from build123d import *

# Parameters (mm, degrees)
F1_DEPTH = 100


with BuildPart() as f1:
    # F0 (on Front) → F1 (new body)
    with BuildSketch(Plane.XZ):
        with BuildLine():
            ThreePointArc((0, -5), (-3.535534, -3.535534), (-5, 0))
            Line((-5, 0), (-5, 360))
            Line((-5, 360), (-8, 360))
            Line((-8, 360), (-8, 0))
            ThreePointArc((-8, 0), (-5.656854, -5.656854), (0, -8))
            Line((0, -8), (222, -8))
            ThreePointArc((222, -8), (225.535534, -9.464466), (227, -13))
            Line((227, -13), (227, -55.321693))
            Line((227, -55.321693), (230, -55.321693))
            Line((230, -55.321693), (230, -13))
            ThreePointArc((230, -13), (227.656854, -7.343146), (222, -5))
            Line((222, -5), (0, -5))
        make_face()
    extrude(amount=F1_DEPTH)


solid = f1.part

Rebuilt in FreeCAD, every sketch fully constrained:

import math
import FreeCAD as App
import Part
import Sketcher

V = App.Vector
Q = App.Units.Quantity

doc = App.newDocument("Part")
body = doc.addObject("PartDesign::Body", "Body")

sketch1 = body.newObject("Sketcher::SketchObject", "Sketch")
sketch1.AttachmentSupport = (doc.getObject("XZ_Plane"), [""])
sketch1.MapMode = "FlatFace"
sketch1.addGeometry(Part.ArcOfCircle(Part.Circle(V(0, 0, 0), V(0, 0, 1), 5), math.radians(180), math.radians(270)), False)
sketch1.addGeometry(Part.LineSegment(V(-5, 0, 0), V(-5, 360, 0)), False)
sketch1.addGeometry(Part.LineSegment(V(-5, 360, 0), V(-8, 360, 0)), False)
sketch1.addGeometry(Part.LineSegment(V(-8, 360, 0), V(-8, 0, 0)), False)
sketch1.addGeometry(Part.ArcOfCircle(Part.Circle(V(0, 0, 0), V(0, 0, 1), 8), math.radians(-180), math.radians(-90)), False)
sketch1.addGeometry(Part.LineSegment(V(0, -8, 0), V(222, -8, 0)), False)
sketch1.addGeometry(Part.ArcOfCircle(Part.Circle(V(222, -13, 0), V(0, 0, 1), 5), math.radians(0), math.radians(90)), False)
sketch1.addGeometry(Part.LineSegment(V(227, -13, 0), V(227, -55.3, 0)), False)
sketch1.addGeometry(Part.LineSegment(V(227, -55.3, 0), V(230, -55.3, 0)), False)
sketch1.addGeometry(Part.LineSegment(V(230, -55.3, 0), V(230, -13, 0)), False)
sketch1.addGeometry(Part.ArcOfCircle(Part.Circle(V(222, -13, 0), V(0, 0, 1), 8), math.radians(0), math.radians(90)), False)
sketch1.addGeometry(Part.LineSegment(V(222, -5, 0), V(0, -5, 0)), False)
sketch1.addConstraint(Sketcher.Constraint("Tangent", 0, 1, 1, 1))
sketch1.addConstraint(Sketcher.Constraint("Coincident", 1, 2, 2, 1))
sketch1.addConstraint(Sketcher.Constraint("Coincident", 2, 2, 3, 1))
sketch1.addConstraint(Sketcher.Constraint("Tangent", 3, 2, 4, 1))
sketch1.addConstraint(Sketcher.Constraint("Tangent", 4, 2, 5, 1))
sketch1.addConstraint(Sketcher.Constraint("Tangent", 5, 2, 6, 2))
sketch1.addConstraint(Sketcher.Constraint("Tangent", 6, 1, 7, 1))
sketch1.addConstraint(Sketcher.Constraint("Coincident", 7, 2, 8, 1))
sketch1.addConstraint(Sketcher.Constraint("Coincident", 8, 2, 9, 1))
sketch1.addConstraint(Sketcher.Constraint("Tangent", 9, 2, 10, 1))
sketch1.addConstraint(Sketcher.Constraint("Tangent", 10, 2, 11, 1))
sketch1.addConstraint(Sketcher.Constraint("Tangent", 11, 2, 0, 2))
sketch1.addConstraint(Sketcher.Constraint("Vertical", 1))
sketch1.addConstraint(Sketcher.Constraint("Horizontal", 2))
sketch1.addConstraint(Sketcher.Constraint("Vertical", 3))
sketch1.addConstraint(Sketcher.Constraint("Horizontal", 5))
sketch1.addConstraint(Sketcher.Constraint("Vertical", 7))
sketch1.addConstraint(Sketcher.Constraint("Horizontal", 8))
sketch1.addConstraint(Sketcher.Constraint("Vertical", 9))
sketch1.addConstraint(Sketcher.Constraint("Horizontal", 11))
sketch1.addConstraint(Sketcher.Constraint("Coincident", 0, 3, -1, 1))
sketch1.addConstraint(Sketcher.Constraint("Coincident", 4, 3, -1, 1))
sketch1.addConstraint(Sketcher.Constraint("Coincident", 10, 3, 6, 3))
sketch1.addConstraint(Sketcher.Constraint("Equal", 0, 6))
sketch1.addConstraint(Sketcher.Constraint("Radius", 0, Q("5 mm")))
sketch1.addConstraint(Sketcher.Constraint("Radius", 4, Q("8.000001 mm")))
sketch1.addConstraint(Sketcher.Constraint("DistanceX", 5, 1, 5, 2, Q("222 mm")))
sketch1.addConstraint(Sketcher.Constraint("DistanceY", 1, 1, 1, 2, Q("360 mm")))
sketch1.addConstraint(Sketcher.Constraint("DistanceY", 7, 2, 7, 1, Q("42.321693 mm")))
pad1 = body.newObject("PartDesign::Pad", "Pad")
pad1.Profile = sketch1
pad1.Length = 100

doc.recompute()
